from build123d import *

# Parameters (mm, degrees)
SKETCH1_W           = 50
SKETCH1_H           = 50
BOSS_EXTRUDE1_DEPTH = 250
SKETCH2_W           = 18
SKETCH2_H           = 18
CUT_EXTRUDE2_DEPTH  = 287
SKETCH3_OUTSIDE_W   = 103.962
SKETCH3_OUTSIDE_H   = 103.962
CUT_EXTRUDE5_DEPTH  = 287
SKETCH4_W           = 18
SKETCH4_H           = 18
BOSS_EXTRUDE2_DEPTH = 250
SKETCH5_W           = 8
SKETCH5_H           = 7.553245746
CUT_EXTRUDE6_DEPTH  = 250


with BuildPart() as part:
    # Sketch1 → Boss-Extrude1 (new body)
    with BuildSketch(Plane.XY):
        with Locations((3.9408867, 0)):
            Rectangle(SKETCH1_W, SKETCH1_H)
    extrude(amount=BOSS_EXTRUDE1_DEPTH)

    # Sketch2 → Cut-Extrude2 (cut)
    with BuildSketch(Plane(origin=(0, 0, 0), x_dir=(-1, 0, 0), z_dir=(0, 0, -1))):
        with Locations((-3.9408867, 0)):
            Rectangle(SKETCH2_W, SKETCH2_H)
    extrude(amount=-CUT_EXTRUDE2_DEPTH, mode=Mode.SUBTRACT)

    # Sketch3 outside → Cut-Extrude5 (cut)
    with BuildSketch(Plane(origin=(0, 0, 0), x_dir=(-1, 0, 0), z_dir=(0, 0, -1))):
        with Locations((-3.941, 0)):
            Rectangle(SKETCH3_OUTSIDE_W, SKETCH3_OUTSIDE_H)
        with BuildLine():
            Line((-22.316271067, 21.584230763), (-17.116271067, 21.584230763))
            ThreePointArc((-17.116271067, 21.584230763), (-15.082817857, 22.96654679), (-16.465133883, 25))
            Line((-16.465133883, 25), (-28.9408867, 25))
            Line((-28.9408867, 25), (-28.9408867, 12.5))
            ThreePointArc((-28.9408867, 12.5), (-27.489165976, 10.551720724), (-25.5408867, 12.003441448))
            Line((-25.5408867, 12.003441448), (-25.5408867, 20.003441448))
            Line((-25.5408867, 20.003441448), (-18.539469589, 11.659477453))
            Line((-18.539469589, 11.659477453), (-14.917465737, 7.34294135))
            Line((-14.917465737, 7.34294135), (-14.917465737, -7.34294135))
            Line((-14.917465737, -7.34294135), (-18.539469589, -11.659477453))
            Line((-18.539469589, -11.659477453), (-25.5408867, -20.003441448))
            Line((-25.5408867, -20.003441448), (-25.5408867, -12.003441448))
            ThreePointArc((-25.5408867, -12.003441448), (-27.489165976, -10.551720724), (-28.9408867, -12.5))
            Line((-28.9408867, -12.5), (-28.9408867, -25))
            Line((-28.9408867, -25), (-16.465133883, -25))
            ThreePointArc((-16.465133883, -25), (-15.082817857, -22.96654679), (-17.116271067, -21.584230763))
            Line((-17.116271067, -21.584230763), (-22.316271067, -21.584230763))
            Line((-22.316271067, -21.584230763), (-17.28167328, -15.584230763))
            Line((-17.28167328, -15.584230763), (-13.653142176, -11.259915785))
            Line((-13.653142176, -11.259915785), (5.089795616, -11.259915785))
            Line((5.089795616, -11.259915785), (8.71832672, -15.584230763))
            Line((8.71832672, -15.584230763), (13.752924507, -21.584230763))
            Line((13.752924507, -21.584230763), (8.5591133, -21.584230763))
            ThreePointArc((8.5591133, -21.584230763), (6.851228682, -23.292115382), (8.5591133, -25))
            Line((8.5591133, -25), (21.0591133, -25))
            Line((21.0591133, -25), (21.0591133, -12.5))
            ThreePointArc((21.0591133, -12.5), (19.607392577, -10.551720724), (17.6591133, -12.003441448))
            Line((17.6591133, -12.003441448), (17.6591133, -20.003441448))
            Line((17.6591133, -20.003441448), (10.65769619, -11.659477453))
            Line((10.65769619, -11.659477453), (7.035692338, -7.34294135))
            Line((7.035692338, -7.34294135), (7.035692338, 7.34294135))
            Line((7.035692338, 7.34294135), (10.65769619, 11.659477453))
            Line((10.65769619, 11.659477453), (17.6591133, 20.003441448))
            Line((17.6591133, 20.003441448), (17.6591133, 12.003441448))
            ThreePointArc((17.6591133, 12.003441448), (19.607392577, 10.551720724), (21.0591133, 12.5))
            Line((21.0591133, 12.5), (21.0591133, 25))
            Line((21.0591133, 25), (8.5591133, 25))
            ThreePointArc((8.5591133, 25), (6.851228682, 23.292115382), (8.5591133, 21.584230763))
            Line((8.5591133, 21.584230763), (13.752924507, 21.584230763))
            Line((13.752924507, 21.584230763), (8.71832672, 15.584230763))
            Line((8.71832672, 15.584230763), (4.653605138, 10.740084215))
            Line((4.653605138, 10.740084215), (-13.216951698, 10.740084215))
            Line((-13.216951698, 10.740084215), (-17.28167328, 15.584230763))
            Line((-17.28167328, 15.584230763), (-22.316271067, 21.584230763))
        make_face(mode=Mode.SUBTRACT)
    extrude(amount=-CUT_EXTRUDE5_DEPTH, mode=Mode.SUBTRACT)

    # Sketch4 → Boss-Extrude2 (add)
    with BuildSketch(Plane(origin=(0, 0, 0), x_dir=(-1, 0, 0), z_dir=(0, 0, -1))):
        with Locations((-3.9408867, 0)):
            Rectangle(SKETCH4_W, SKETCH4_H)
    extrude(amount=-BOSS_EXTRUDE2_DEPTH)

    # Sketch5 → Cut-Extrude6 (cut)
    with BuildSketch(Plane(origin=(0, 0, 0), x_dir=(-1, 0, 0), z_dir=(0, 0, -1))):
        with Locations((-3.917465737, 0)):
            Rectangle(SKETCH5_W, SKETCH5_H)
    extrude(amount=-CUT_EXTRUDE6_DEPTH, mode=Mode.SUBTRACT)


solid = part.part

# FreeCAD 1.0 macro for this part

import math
import FreeCAD as App
import Part
import Sketcher
from FreeCAD import Vector
Q = App.Units.Quantity


def add_polygon(sketch, points):
    """Adds a closed chain of lines whose ends are joined by coincident constraints."""
    first, n = sketch.GeometryCount, len(points)
    for a, b in zip(points, points[1:] + points[:1]):
        sketch.addGeometry(Part.LineSegment(App.Vector(*a, 0), App.Vector(*b, 0)), False)
    for i in range(n):
        sketch.addConstraint(Sketcher.Constraint("Coincident", first + i, 2, first + (i + 1) % n, 1))

doc = App.newDocument("Part")
body = doc.addObject("PartDesign::Body", "Body")

sketch1 = doc.addObject("Sketcher::SketchObject", "Sketch")
body.addObject(sketch1)
sketch1.AttachmentSupport = (doc.XY_Plane, [""])
sketch1.MapMode = "FlatFace"
add_polygon(sketch1, [(-21, 25), (-21, -25), (29, -25), (29, 25)])
sketch1.addConstraint([
    Sketcher.Constraint("Vertical", 0),
    Sketcher.Constraint("Horizontal", 1),
    Sketcher.Constraint("Vertical", 2),
    Sketcher.Constraint("Horizontal", 3),
    Sketcher.Constraint("Equal", 3, 0),
    Sketcher.Constraint("DistanceX", 1, 1, 1, 2, Q("50 mm")),
    Sketcher.Constraint("DistanceY", 0, 2, -1, 1, Q("25 mm")),
    Sketcher.Constraint("DistanceX", 0, 2, -1, 1, Q("21.059113 mm")),
])
pad1 = doc.addObject("PartDesign::Pad", "Pad")
body.addObject(pad1)
pad1.Profile = sketch1
pad1.Length = 250

sketch2 = doc.addObject("Sketcher::SketchObject", "Sketch001")
body.addObject(sketch2)
sketch2.AttachmentSupport = (doc.XY_Plane, [""])
sketch2.MapMode = "FlatFace"
add_polygon(sketch2, [(13, 9), (13, -9), (-5, -9), (-5, 9)])
sketch2.addConstraint([
    Sketcher.Constraint("Vertical", 0),
    Sketcher.Constraint("Horizontal", 1),
    Sketcher.Constraint("Vertical", 2),
    Sketcher.Constraint("Horizontal", 3),
    Sketcher.Constraint("Equal", 3, 0),
    Sketcher.Constraint("DistanceX", 1, 2, 1, 1, Q("18 mm")),
    Sketcher.Constraint("DistanceY", 0, 2, -1, 1, Q("9 mm")),
    Sketcher.Constraint("DistanceX", -1, 1, 0, 2, Q("12.940887 mm")),
])
pocket1 = doc.addObject("PartDesign::Pocket", "Pocket")
body.addObject(pocket1)
pocket1.Profile = sketch2
pocket1.Length = 287
pocket1.Reversed = True

sketch3 = doc.addObject("Sketcher::SketchObject", "Sketch002")
body.addObject(sketch3)
sketch3.AttachmentSupport = (doc.XY_Plane, [""])
sketch3.MapMode = "FlatFace"
add_polygon(sketch3, [(55.9, 52), (55.9, -52), (-48, -52), (-48, 52)])
sketch3.addGeometry(Part.LineSegment(Vector(17.1, 21.6, 0), Vector(22.3, 21.6, 0)), False)
sketch3.addGeometry(Part.LineSegment(Vector(22.3, 21.6, 0), Vector(17.3, 15.6, 0)), False)
sketch3.addGeometry(Part.LineSegment(Vector(17.3, 15.6, 0), Vector(13.2, 10.7, 0)), False)
sketch3.addGeometry(Part.LineSegment(Vector(13.2, 10.7, 0), Vector(-4.7, 10.7, 0)), False)
sketch3.addGeometry(Part.LineSegment(Vector(-4.7, 10.7, 0), Vector(-8.7, 15.6, 0)), False)
sketch3.addGeometry(Part.LineSegment(Vector(-8.7, 15.6, 0), Vector(-13.8, 21.6, 0)), False)
sketch3.addGeometry(Part.LineSegment(Vector(-13.8, 21.6, 0), Vector(-8.6, 21.6, 0)), False)
sketch3.addGeometry(Part.ArcOfCircle(Part.Circle(Vector(-8.6, 23.3, 0), Vector(0, 0, 1), 1.7), math.radians(-90), math.radians(90)), False)
sketch3.addGeometry(Part.LineSegment(Vector(-8.6, 25, 0), Vector(-21.1, 25, 0)), False)
sketch3.addGeometry(Part.LineSegment(Vector(-21.1, 25, 0), Vector(-21.1, 12.5, 0)), False)
sketch3.addGeometry(Part.ArcOfCircle(Part.Circle(Vector(-19.4, 12.3, 0), Vector(0, 0, 1), 1.7), math.radians(172), math.radians(352)), False)
sketch3.addGeometry(Part.LineSegment(Vector(-17.7, 12, 0), Vector(-17.7, 20, 0)), False)
sketch3.addGeometry(Part.LineSegment(Vector(-17.7, 20, 0), Vector(-10.7, 11.7, 0)), False)
sketch3.addGeometry(Part.LineSegment(Vector(-10.7, 11.7, 0), Vector(-7, 7.3, 0)), False)
sketch3.addGeometry(Part.LineSegment(Vector(-7, 7.3, 0), Vector(-7, -7.3, 0)), False)
sketch3.addGeometry(Part.LineSegment(Vector(-7, -7.3, 0), Vector(-10.7, -11.7, 0)), False)
sketch3.addGeometry(Part.LineSegment(Vector(-10.7, -11.7, 0), Vector(-17.7, -20, 0)), False)
sketch3.addGeometry(Part.LineSegment(Vector(-17.7, -20, 0), Vector(-17.7, -12, 0)), False)
sketch3.addGeometry(Part.ArcOfCircle(Part.Circle(Vector(-19.4, -12.3, 0), Vector(0, 0, 1), 1.7), math.radians(8), math.radians(188)), False)
sketch3.addGeometry(Part.LineSegment(Vector(-21.1, -12.5, 0), Vector(-21.1, -25, 0)), False)
sketch3.addGeometry(Part.LineSegment(Vector(-21.1, -25, 0), Vector(-8.6, -25, 0)), False)
sketch3.addGeometry(Part.ArcOfCircle(Part.Circle(Vector(-8.6, -23.3, 0), Vector(0, 0, 1), 1.7), math.radians(-90), math.radians(90)), False)
sketch3.addGeometry(Part.LineSegment(Vector(-8.6, -21.6, 0), Vector(-13.8, -21.6, 0)), False)
sketch3.addGeometry(Part.LineSegment(Vector(-13.8, -21.6, 0), Vector(-8.7, -15.6, 0)), False)
sketch3.addGeometry(Part.LineSegment(Vector(-8.7, -15.6, 0), Vector(-5.1, -11.3, 0)), False)
sketch3.addGeometry(Part.LineSegment(Vector(-5.1, -11.3, 0), Vector(13.7, -11.3, 0)), False)
sketch3.addGeometry(Part.LineSegment(Vector(13.7, -11.3, 0), Vector(17.3, -15.6, 0)), False)
sketch3.addGeometry(Part.LineSegment(Vector(17.3, -15.6, 0), Vector(22.3, -21.6, 0)), False)
sketch3.addGeometry(Part.LineSegment(Vector(22.3, -21.6, 0), Vector(17.1, -21.6, 0)), False)
sketch3.addGeometry(Part.ArcOfCircle(Part.Circle(Vector(16.8, -23.3, 0), Vector(0, 0, 1), 1.7), math.radians(79), math.radians(259)), False)
sketch3.addGeometry(Part.LineSegment(Vector(16.5, -25, 0), Vector(28.9, -25, 0)), False)
sketch3.addGeometry(Part.LineSegment(Vector(28.9, -25, 0), Vector(28.9, -12.5, 0)), False)
sketch3.addGeometry(Part.ArcOfCircle(Part.Circle(Vector(27.2, -12.3, 0), Vector(0, 0, 1), 1.7), math.radians(-8), math.radians(172)), False)
sketch3.addGeometry(Part.LineSegment(Vector(25.5, -12, 0), Vector(25.5, -20, 0)), False)
sketch3.addGeometry(Part.LineSegment(Vector(25.5, -20, 0), Vector(18.5, -11.7, 0)), False)
sketch3.addGeometry(Part.LineSegment(Vector(18.5, -11.7, 0), Vector(14.9, -7.3, 0)), False)
sketch3.addGeometry(Part.LineSegment(Vector(14.9, -7.3, 0), Vector(14.9, 7.3, 0)), False)
sketch3.addGeometry(Part.LineSegment(Vector(14.9, 7.3, 0), Vector(18.5, 11.7, 0)), False)
sketch3.addGeometry(Part.LineSegment(Vector(18.5, 11.7, 0), Vector(25.5, 20, 0)), False)
sketch3.addGeometry(Part.LineSegment(Vector(25.5, 20, 0), Vector(25.5, 12, 0)), False)
sketch3.addGeometry(Part.ArcOfCircle(Part.Circle(Vector(27.2, 12.3, 0), Vector(0, 0, 1), 1.7), math.radians(-172), math.radians(8)), False)
sketch3.addGeometry(Part.LineSegment(Vector(28.9, 12.5, 0), Vector(28.9, 25, 0)), False)
sketch3.addGeometry(Part.LineSegment(Vector(28.9, 25, 0), Vector(16.5, 25, 0)), False)
sketch3.addGeometry(Part.ArcOfCircle(Part.Circle(Vector(16.8, 23.3, 0), Vector(0, 0, 1), 1.7), math.radians(101), math.radians(281)), False)
sketch3.addConstraint([
    Sketcher.Constraint("Coincident", 4, 2, 5, 1),
    Sketcher.Constraint("Coincident", 5, 2, 6, 1),
    Sketcher.Constraint("Coincident", 6, 2, 7, 1),
    Sketcher.Constraint("Coincident", 7, 2, 8, 1),
    Sketcher.Constraint("Coincident", 8, 2, 9, 1),
    Sketcher.Constraint("Coincident", 9, 2, 10, 1),
    Sketcher.Constraint("Tangent", 10, 2, 11, 1),
    Sketcher.Constraint("Tangent", 11, 2, 12, 1),
    Sketcher.Constraint("Coincident", 12, 2, 13, 1),
    Sketcher.Constraint("Coincident", 13, 2, 14, 1),
    Sketcher.Constraint("Coincident", 14, 2, 15, 1),
    Sketcher.Constraint("Coincident", 15, 2, 16, 1),
    Sketcher.Constraint("Coincident", 16, 2, 17, 1),
    Sketcher.Constraint("Coincident", 17, 2, 18, 1),
    Sketcher.Constraint("Coincident", 18, 2, 19, 1),
    Sketcher.Constraint("Coincident", 19, 2, 20, 1),
    Sketcher.Constraint("Coincident", 20, 2, 21, 1),
    Sketcher.Constraint("Coincident", 21, 2, 22, 1),
    Sketcher.Constraint("Coincident", 22, 2, 23, 1),
    Sketcher.Constraint("Coincident", 23, 2, 24, 1),
    Sketcher.Constraint("Tangent", 24, 2, 25, 1),
    Sketcher.Constraint("Tangent", 25, 2, 26, 1),
    Sketcher.Constraint("Coincident", 26, 2, 27, 1),
    Sketcher.Constraint("Coincident", 27, 2, 28, 1),
    Sketcher.Constraint("Coincident", 28, 2, 29, 1),
    Sketcher.Constraint("Coincident", 29, 2, 30, 1),
    Sketcher.Constraint("Coincident", 30, 2, 31, 1),
    Sketcher.Constraint("Coincident", 31, 2, 32, 1),
    Sketcher.Constraint("Coincident", 32, 2, 33, 1),
    Sketcher.Constraint("Coincident", 33, 2, 34, 1),
    Sketcher.Constraint("Coincident", 34, 2, 35, 1),
    Sketcher.Constraint("Coincident", 35, 2, 36, 1),
    Sketcher.Constraint("Coincident", 36, 2, 37, 1),
    Sketcher.Constraint("Coincident", 37, 2, 38, 1),
    Sketcher.Constraint("Coincident", 38, 2, 39, 1),
    Sketcher.Constraint("Coincident", 39, 2, 40, 1),
    Sketcher.Constraint("Coincident", 40, 2, 41, 1),
    Sketcher.Constraint("Coincident", 41, 2, 42, 1),
    Sketcher.Constraint("Coincident", 42, 2, 43, 1),
    Sketcher.Constraint("Coincident", 43, 2, 44, 1),
    Sketcher.Constraint("Coincident", 44, 2, 45, 1),
    Sketcher.Constraint("Coincident", 45, 2, 46, 1),
    Sketcher.Constraint("Coincident", 46, 2, 47, 1),
    Sketcher.Constraint("Coincident", 47, 2, 4, 1),
    Sketcher.Constraint("Vertical", 0),
    Sketcher.Constraint("Horizontal", 1),
    Sketcher.Constraint("Vertical", 2),
    Sketcher.Constraint("Horizontal", 3),
    Sketcher.Constraint("Horizontal", 4),
    Sketcher.Constraint("Horizontal", 7),
    Sketcher.Constraint("Horizontal", 10),
    Sketcher.Constraint("Horizontal", 12),
    Sketcher.Constraint("Vertical", 13),
    Sketcher.Constraint("Vertical", 15),
    Sketcher.Constraint("Vertical", 18),
    Sketcher.Constraint("Vertical", 21),
    Sketcher.Constraint("Vertical", 23),
    Sketcher.Constraint("Horizontal", 24),
    Sketcher.Constraint("Horizontal", 26),
    Sketcher.Constraint("Horizontal", 29),
    Sketcher.Constraint("Horizontal", 32),
    Sketcher.Constraint("Horizontal", 34),
    Sketcher.Constraint("Vertical", 35),
    Sketcher.Constraint("Vertical", 37),
    Sketcher.Constraint("Vertical", 40),
    Sketcher.Constraint("Vertical", 43),
    Sketcher.Constraint("Vertical", 45),
    Sketcher.Constraint("Horizontal", 46),
    Sketcher.Constraint("Equal", 14, 22),
    Sketcher.Constraint("Equal", 11, 25),
    Sketcher.Constraint("Equal", 22, 36),
    Sketcher.Constraint("Equal", 36, 44),
    Sketcher.Constraint("Equal", 33, 47),
    Sketcher.Constraint("Symmetric", 14, 3, 22, 3, -1),
    Sketcher.Constraint("Symmetric", 11, 3, 25, 3, -1),
    Sketcher.Constraint("Symmetric", 36, 3, 44, 3, -1),
    Sketcher.Constraint("Symmetric", 33, 3, 47, 3, -1),
    Sketcher.Constraint("Symmetric", 16, 2, 19, 2, -1),
    Sketcher.Constraint("Symmetric", 15, 2, 20, 2, -1),
    Sketcher.Constraint("Symmetric", 8, 2, 27, 2, -1),
    Sketcher.Constraint("Symmetric", 5, 2, 30, 2, -1),
    Sketcher.Constraint("Symmetric", 4, 2, 31, 2, -1),
    Sketcher.Constraint("Symmetric", 38, 2, 41, 2, -1),
    Sketcher.Constraint("Symmetric", 37, 2, 42, 2, -1),
    Sketcher.Constraint("Symmetric", 34, 2, 45, 2, -1),
    Sketcher.Constraint("Parallel", 5, 6),
    Sketcher.Constraint("Parallel", 8, 9),
    Sketcher.Constraint("Parallel", 9, 16),
    Sketcher.Constraint("Parallel", 16, 17),
    Sketcher.Constraint("Parallel", 6, 19),
    Sketcher.Constraint("Parallel", 19, 20),
    Sketcher.Constraint("Parallel", 20, 27),
    Sketcher.Constraint("Parallel", 27, 28),
    Sketcher.Constraint("Parallel", 17, 30),
    Sketcher.Constraint("Parallel", 31, 38),
    Sketcher.Constraint("Parallel", 38, 39),
    Sketcher.Constraint("Parallel", 28, 41),
    Sketcher.Constraint("Horizontal", 25, 3, 33, 3),
    Sketcher.Constraint("Horizontal", 22, 3, 36, 3),
    Sketcher.Constraint("Horizontal", 5, 2, 8, 2),
    Sketcher.Constraint("Horizontal", 4, 2, 9, 2),
    Sketcher.Constraint("Horizontal", 24, 2, 33, 2),
    Sketcher.Constraint("Horizontal", 22, 2, 35, 2),
    Sketcher.Constraint("Horizontal", 21, 2, 36, 2),
    Sketcher.Constraint("Horizontal", 20, 2, 37, 2),
    Sketcher.Constraint("Horizontal", 19, 2, 38, 2),
    Sketcher.Constraint("Horizontal", 18, 2, 39, 2),
    Sketcher.Constraint("Horizontal", 13, 2, 44, 2),
    Sketcher.Constraint("Equal", 3, 0),
    Sketcher.Constraint("Equal", 24, 13),
    Sketcher.Constraint("DistanceY", 15, 1, 15, 2, Q("8 mm")),
    Sketcher.Constraint("Angle", 5, Q("-130 deg")),
    Sketcher.Constraint("DistanceX", 4, 1, 4, 2, Q("5.2 mm")),
    Sketcher.Constraint("DistanceX", 12, 2, 12, 1, Q("12.5 mm")),
    Sketcher.Constraint("DistanceY", -1, 1, 11, 2, Q("25 mm")),
    Sketcher.Constraint("DistanceY", 5, 2, 4, 2, Q("6 mm")),
    Sketcher.Constraint("DistanceX", 8, 2, 5, 2, Q("26 mm")),
    Sketcher.Constraint("DistanceY", 29, 2, 6, 2, Q("22 mm")),
    Sketcher.Constraint("DistanceX", 14, 3, 11, 3, Q("10.8 mm")),
    Sketcher.Constraint("DistanceX", 25, 3, 36, 3, Q("35.8 mm")),
    Sketcher.Constraint("DistanceX", 14, 3, 14, 2, Q("1.7 mm")),
    Sketcher.Constraint("DistanceX", 1, 2, 1, 1, Q("103.962 mm")),
    Sketcher.Constraint("DistanceX", 1, 2, -1, 1, Q("48.04 mm")),
    Sketcher.Constraint("Radius", 33, Q("1.738639 mm")),
    Sketcher.Constraint("DistanceY", 0, 2, -1, 1, Q("51.981 mm")),
    Sketcher.Constraint("Radius", 11, Q("1.707885 mm")),
    Sketcher.Constraint("Radius", 14, Q("1.718035 mm")),
    Sketcher.Constraint("DistanceX", 10, 1, 10, 2, Q("5.193811 mm")),
    Sketcher.Constraint("DistanceY", 17, 2, 14, 2, Q("4.6605 mm")),
    Sketcher.Constraint("DistanceX", 19, 2, 28, 2, Q("5.567901 mm")),
    Sketcher.Constraint("DistanceY", 25, 3, 28, 2, Q("12.0322 mm")),
    Sketcher.Constraint("DistanceX", -1, 1, 4, 2, Q("22.316271 mm")),
])
pocket2 = doc.addObject("PartDesign::Pocket", "Pocket001")
body.addObject(pocket2)
pocket2.Profile = sketch3
pocket2.Length = 287
pocket2.Reversed = True

sketch4 = doc.addObject("Sketcher::SketchObject", "Sketch003")
body.addObject(sketch4)
sketch4.AttachmentSupport = (doc.XY_Plane, [""])
sketch4.MapMode = "FlatFace"
add_polygon(sketch4, [(13, 9), (13, -9), (-5, -9), (-5, 9)])
sketch4.addConstraint([
    Sketcher.Constraint("Vertical", 0),
    Sketcher.Constraint("Horizontal", 1),
    Sketcher.Constraint("Vertical", 2),
    Sketcher.Constraint("Horizontal", 3),
    Sketcher.Constraint("Equal", 3, 0),
    Sketcher.Constraint("DistanceX", 1, 2, 1, 1, Q("18 mm")),
    Sketcher.Constraint("DistanceY", 0, 2, -1, 1, Q("9 mm")),
    Sketcher.Constraint("DistanceX", -1, 1, 0, 2, Q("12.940887 mm")),
])
pad2 = doc.addObject("PartDesign::Pad", "Pad001")
body.addObject(pad2)
pad2.Profile = sketch4
pad2.Length = 250

sketch5 = doc.addObject("Sketcher::SketchObject", "Sketch004")
body.addObject(sketch5)
sketch5.AttachmentSupport = (doc.XY_Plane, [""])
sketch5.MapMode = "FlatFace"
add_polygon(sketch5, [(8, 4), (8, -4), (0, -4), (0, 4)])
sketch5.addConstraint([
    Sketcher.Constraint("Vertical", 0),
    Sketcher.Constraint("Horizontal", 1),
    Sketcher.Constraint("Vertical", 2),
    Sketcher.Constraint("Horizontal", 3),
    Sketcher.Constraint("DistanceX", 1, 2, 1, 1, Q("8 mm")),
    Sketcher.Constraint("DistanceY", 0, 2, 0, 1, Q("7.553246 mm")),
    Sketcher.Constraint("DistanceX", -1, 1, 0, 2, Q("7.917466 mm")),
    Sketcher.Constraint("DistanceY", 0, 2, -1, 1, Q("3.776623 mm")),
])
pocket3 = doc.addObject("PartDesign::Pocket", "Pocket002")
body.addObject(pocket3)
pocket3.Profile = sketch5
pocket3.Length = 250
pocket3.Reversed = True

doc.recompute()
